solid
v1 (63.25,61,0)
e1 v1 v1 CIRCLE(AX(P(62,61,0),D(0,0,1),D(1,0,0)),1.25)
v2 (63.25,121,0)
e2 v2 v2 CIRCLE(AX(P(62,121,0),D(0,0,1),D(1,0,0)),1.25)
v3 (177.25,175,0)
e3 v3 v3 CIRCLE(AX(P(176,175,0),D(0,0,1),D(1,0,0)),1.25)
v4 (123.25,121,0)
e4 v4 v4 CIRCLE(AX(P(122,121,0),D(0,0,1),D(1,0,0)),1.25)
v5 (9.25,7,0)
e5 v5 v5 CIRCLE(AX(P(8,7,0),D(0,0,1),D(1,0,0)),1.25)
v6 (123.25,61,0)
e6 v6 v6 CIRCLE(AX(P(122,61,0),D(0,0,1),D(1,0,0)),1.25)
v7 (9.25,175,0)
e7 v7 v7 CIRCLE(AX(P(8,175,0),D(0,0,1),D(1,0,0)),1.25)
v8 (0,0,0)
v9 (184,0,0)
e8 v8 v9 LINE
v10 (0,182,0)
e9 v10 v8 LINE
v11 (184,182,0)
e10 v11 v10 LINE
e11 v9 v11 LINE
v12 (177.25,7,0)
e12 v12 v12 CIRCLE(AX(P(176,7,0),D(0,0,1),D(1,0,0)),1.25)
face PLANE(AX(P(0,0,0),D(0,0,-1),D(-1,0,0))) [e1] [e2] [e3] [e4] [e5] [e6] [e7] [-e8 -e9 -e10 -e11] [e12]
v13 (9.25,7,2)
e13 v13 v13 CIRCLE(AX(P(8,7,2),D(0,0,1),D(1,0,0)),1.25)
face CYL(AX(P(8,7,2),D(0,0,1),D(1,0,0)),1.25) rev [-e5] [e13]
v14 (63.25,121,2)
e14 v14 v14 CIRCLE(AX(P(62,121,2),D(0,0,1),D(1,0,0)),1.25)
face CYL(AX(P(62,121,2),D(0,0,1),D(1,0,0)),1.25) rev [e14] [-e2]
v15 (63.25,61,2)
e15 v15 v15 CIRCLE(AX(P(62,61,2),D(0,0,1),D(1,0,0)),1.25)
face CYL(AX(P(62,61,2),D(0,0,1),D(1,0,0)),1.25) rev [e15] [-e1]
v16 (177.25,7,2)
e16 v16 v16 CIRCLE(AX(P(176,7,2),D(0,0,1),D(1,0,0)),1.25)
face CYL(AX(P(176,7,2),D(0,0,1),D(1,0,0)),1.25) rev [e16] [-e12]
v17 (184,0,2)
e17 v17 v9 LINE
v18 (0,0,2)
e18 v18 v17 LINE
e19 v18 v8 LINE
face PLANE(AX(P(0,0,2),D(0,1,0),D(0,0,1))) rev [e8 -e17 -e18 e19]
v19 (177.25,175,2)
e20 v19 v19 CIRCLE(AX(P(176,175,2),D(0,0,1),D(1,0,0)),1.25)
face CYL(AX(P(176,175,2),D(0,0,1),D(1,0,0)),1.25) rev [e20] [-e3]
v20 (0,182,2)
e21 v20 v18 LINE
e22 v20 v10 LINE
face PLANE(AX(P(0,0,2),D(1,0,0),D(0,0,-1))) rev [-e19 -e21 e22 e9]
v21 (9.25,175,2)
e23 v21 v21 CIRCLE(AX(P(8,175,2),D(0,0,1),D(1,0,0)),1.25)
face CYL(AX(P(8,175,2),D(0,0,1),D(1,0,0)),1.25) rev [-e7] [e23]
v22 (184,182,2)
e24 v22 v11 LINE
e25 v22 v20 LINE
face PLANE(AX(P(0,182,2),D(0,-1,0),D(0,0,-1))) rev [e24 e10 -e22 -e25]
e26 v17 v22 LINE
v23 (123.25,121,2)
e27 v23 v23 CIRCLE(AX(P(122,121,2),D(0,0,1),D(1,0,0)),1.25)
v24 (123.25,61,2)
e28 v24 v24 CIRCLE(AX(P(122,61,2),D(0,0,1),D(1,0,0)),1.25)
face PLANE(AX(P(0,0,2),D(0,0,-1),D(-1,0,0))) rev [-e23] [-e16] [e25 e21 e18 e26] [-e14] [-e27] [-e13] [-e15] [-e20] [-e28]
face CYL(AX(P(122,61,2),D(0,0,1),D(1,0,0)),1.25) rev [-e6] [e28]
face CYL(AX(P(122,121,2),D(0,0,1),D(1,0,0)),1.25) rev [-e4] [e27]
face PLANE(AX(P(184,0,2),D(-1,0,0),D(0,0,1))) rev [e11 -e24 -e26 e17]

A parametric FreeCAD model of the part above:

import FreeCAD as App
import Part
import Sketcher

V = App.Vector
Q = App.Units.Quantity

doc = App.newDocument("Part")
body = doc.addObject("PartDesign::Body", "Body")

# Sketch on XY plane
sketch1 = doc.addObject("Sketcher::SketchObject", "Sketch")
body.addObject(sketch1)
sketch1.AttachmentSupport = (doc.XY_Plane, [""])
sketch1.MapMode = "FlatFace"
sketch1.addGeometry(Part.LineSegment(V(0, 182, 0), V(0, 0, 0)), False)
sketch1.addGeometry(Part.LineSegment(V(0, 0, 0), V(184, 0, 0)), False)
sketch1.addGeometry(Part.LineSegment(V(184, 0, 0), V(184, 182, 0)), False)
sketch1.addGeometry(Part.LineSegment(V(184, 182, 0), V(0, 182, 0)), False)
sketch1.addConstraint(Sketcher.Constraint("Coincident", 0, 2, 1, 1))
sketch1.addConstraint(Sketcher.Constraint("Coincident", 1, 2, 2, 1))
sketch1.addConstraint(Sketcher.Constraint("Coincident", 2, 2, 3, 1))
sketch1.addConstraint(Sketcher.Constraint("Coincident", 3, 2, 0, 1))
sketch1.addConstraint(Sketcher.Constraint("Vertical", 0))
sketch1.addConstraint(Sketcher.Constraint("Horizontal", 1))
sketch1.addConstraint(Sketcher.Constraint("Vertical", 2))
sketch1.addConstraint(Sketcher.Constraint("Horizontal", 3))
sketch1.addConstraint(Sketcher.Constraint("Coincident", 0, 2, -1, 1))
sketch1.addConstraint(Sketcher.Constraint("DistanceX", 1, 1, 1, 2, Q("184 mm")))
sketch1.addConstraint(Sketcher.Constraint("DistanceY", 0, 2, 0, 1, Q("182 mm")))
pad1 = doc.addObject("PartDesign::Pad", "Pad")
body.addObject(pad1)
pad1.Profile = sketch1
pad1.Length = 2

# Sketch on XY plane
sketch2 = doc.addObject("Sketcher::SketchObject", "Sketch001")
body.addObject(sketch2)
sketch2.AttachmentSupport = (doc.XY_Plane, [""])
sketch2.MapMode = "FlatFace"
sketch2.AttachmentOffset = App.Placement(V(0, 0, 2), App.Rotation())
sketch2.addGeometry(Part.Circle(V(8, 175, 0), V(0, 0, 1), 1.2), False)
sketch2.addGeometry(Part.Circle(V(8, 7, 0), V(0, 0, 1), 1.2), False)
sketch2.addGeometry(Part.Circle(V(176, 7, 0), V(0, 0, 1), 1.2), False)
sketch2.addGeometry(Part.Circle(V(176, 175, 0), V(0, 0, 1), 1.2), False)
sketch2.addConstraint(Sketcher.Constraint("Equal", 0, 1))
sketch2.addConstraint(Sketcher.Constraint("Equal", 1, 2))
sketch2.addConstraint(Sketcher.Constraint("Equal", 2, 3))
sketch2.addConstraint(Sketcher.Constraint("Horizontal", 1, 3, 2, 3))
sketch2.addConstraint(Sketcher.Constraint("Horizontal", 0, 3, 3, 3))
sketch2.addConstraint(Sketcher.Constraint("Vertical", 0, 3, 1, 3))
sketch2.addConstraint(Sketcher.Constraint("Vertical", 2, 3, 3, 3))
sketch2.addConstraint(Sketcher.Constraint("Diameter", 0, Q("2.5 mm")))
sketch2.addConstraint(Sketcher.Constraint("DistanceX", -1, 1, 0, 3, Q("8 mm")))
sketch2.addConstraint(Sketcher.Constraint("DistanceY", -1, 1, 0, 3, Q("175 mm")))
sketch2.addConstraint(Sketcher.Constraint("DistanceY", -1, 1, 1, 3, Q("7 mm")))
sketch2.addConstraint(Sketcher.Constraint("DistanceX", -1, 1, 2, 3, Q("176 mm")))
doc.recompute()
hole = doc.addObject("PartDesign::Hole", "Hole")
body.addObject(hole)
hole.Profile = sketch2
hole.ThreadType = "None"
hole.Diameter = 2.5
hole.DepthType = "ThroughAll"

# Sketch on XY plane
sketch3 = doc.addObject("Sketcher::SketchObject", "Sketch002")
body.addObject(sketch3)
sketch3.AttachmentSupport = (doc.XY_Plane, [""])
sketch3.MapMode = "FlatFace"
sketch3.AttachmentOffset = App.Placement(V(0, 0, 2), App.Rotation())
sketch3.addGeometry(Part.Circle(V(62, 61, 0), V(0, 0, 1), 1.2), False)
sketch3.addGeometry(Part.Circle(V(62, 121, 0), V(0, 0, 1), 1.2), False)
sketch3.addConstraint(Sketcher.Constraint("Equal", 0, 1))
sketch3.addConstraint(Sketcher.Constraint("Vertical", 0, 3, 1, 3))
sketch3.addConstraint(Sketcher.Constraint("Diameter", 0, Q("2.5 mm")))
sketch3.addConstraint(Sketcher.Constraint("DistanceX", -1, 1, 0, 3, Q("62 mm")))
sketch3.addConstraint(Sketcher.Constraint("DistanceY", -1, 1, 0, 3, Q("61 mm")))
sketch3.addConstraint(Sketcher.Constraint("DistanceY", -1, 1, 1, 3, Q("121 mm")))
doc.recompute()
hole2 = doc.addObject("PartDesign::Hole", "Hole001")
body.addObject(hole2)
hole2.Profile = sketch3
hole2.ThreadType = "None"
hole2.Diameter = 2.5
hole2.DepthType = "ThroughAll"
doc.recompute()

datumplane = doc.addObject("PartDesign::Plane", "DatumPlane")
body.addObject(datumplane)
datumplane.AttachmentSupport = (doc.YZ_Plane, [""])
datumplane.MapMode = "FlatFace"
datumplane.AttachmentOffset = App.Placement(V(0, 0, 92), App.Rotation())
mirrored = doc.addObject("PartDesign::Mirrored", "Mirrored")
body.addObject(mirrored)
mirrored.Originals = [hole2]
mirrored.MirrorPlane = (datumplane, [""])
body.Tip = mirrored

doc.recompute()
